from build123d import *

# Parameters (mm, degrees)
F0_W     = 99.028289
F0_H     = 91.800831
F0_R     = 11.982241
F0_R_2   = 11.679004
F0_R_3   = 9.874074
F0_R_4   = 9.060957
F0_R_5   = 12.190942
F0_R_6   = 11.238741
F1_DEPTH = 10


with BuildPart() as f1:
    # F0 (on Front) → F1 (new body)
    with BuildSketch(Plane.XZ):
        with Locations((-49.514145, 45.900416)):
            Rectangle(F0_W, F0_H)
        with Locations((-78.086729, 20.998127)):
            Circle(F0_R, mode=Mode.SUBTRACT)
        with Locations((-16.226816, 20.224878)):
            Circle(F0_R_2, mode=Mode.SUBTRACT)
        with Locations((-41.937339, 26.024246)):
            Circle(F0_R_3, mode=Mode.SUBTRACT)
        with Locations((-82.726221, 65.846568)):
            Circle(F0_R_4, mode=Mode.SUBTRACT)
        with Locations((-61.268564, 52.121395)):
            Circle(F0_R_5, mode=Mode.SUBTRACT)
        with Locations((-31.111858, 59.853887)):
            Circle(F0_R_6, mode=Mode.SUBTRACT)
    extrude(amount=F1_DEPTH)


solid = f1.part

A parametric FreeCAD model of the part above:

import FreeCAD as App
import Part
import Sketcher

V = App.Vector


def add_polygon(sketch, points):
    """Adds a closed chain of lines whose ends are joined by coincident constraints."""
    first, n = sketch.GeometryCount, len(points)
    for a, b in zip(points, points[1:] + points[:1]):
        sketch.addGeometry(Part.LineSegment(App.Vector(*a, 0), App.Vector(*b, 0)), False)
    for i in range(n):
        sketch.addConstraint(Sketcher.Constraint("Coincident", first + i, 2, first + (i + 1) % n, 1))

doc = App.newDocument("Part")
params = doc.addObject("Spreadsheet::Sheet", "Params")
for row, (alias, value) in enumerate([
    ("pad1_length", "10 mm"),
], start=1):
    params.set(f"A{row}", alias)
    params.set(f"B{row}", "=" + value)
    params.setAlias(f"B{row}", alias)

body = doc.addObject("PartDesign::Body", "Body")

# Sketch on XZ plane
sketch1 = body.newObject("Sketcher::SketchObject", "Sketch")
sketch1.AttachmentSupport = (doc.getObject("XZ_Plane"), [""])
sketch1.MapMode = "FlatFace"
add_polygon(sketch1, [(-99.028289, 91.800832), (-99.028289, 0), (0, 0), (0, 91.800832)])  # lines 0-3
sketch1.addGeometry(Part.Circle(V(-78.086729, 20.998127, 0), V(0, 0, 1), 11.982241), False)  # 4
sketch1.addGeometry(Part.Circle(V(-16.226816, 20.224878, 0), V(0, 0, 1), 11.679004), False)  # 5
sketch1.addGeometry(Part.Circle(V(-41.937339, 26.024246, 0), V(0, 0, 1), 9.874074), False)  # 6
sketch1.addGeometry(Part.Circle(V(-61.268564, 52.121395, 0), V(0, 0, 1), 12.190942), False)  # 7
sketch1.addGeometry(Part.Circle(V(-82.726221, 65.846568, 0), V(0, 0, 1), 9.060957), False)  # 8
sketch1.addGeometry(Part.Circle(V(-31.111858, 59.853887, 0), V(0, 0, 1), 11.238741), False)  # 9
sketch1.addConstraint(Sketcher.Constraint("Vertical", 0))
sketch1.addConstraint(Sketcher.Constraint("Horizontal", 1))
sketch1.addConstraint(Sketcher.Constraint("Vertical", 2))
sketch1.addConstraint(Sketcher.Constraint("Horizontal", 3))
sketch1.addConstraint(Sketcher.Constraint("Coincident", 1, 2, -1, 1))
sketch1.addConstraint(Sketcher.Constraint("Diameter", 5, 23.358008))
sketch1.addConstraint(Sketcher.Constraint("Diameter", 6, 19.748148))
sketch1.addConstraint(Sketcher.Constraint("Diameter", 9, 22.477482))
sketch1.addConstraint(Sketcher.Constraint("Diameter", 4, 23.964482))
sketch1.addConstraint(Sketcher.Constraint("Diameter", 7, 24.381884))
sketch1.addConstraint(Sketcher.Constraint("Diameter", 8, 18.121914))
sketch1.addConstraint(Sketcher.Constraint("DistanceX", 1, 1, 1, 2, 99.028289))
sketch1.addConstraint(Sketcher.Constraint("DistanceY", 0, 2, 0, 1, 91.800831))
sketch1.addConstraint(Sketcher.Constraint("DistanceX", 4, 3, -1, 1, 78.086729))
sketch1.addConstraint(Sketcher.Constraint("DistanceY", -1, 1, 5, 3, 20.224878))
sketch1.addConstraint(Sketcher.Constraint("DistanceX", 6, 3, -1, 1, 41.937339))
sketch1.addConstraint(Sketcher.Constraint("DistanceX", 8, 3, -1, 1, 82.726221))
sketch1.addConstraint(Sketcher.Constraint("DistanceY", -1, 1, 8, 3, 65.846568))
sketch1.addConstraint(Sketcher.Constraint("DistanceX", 9, 3, -1, 1, 31.111858))
sketch1.addConstraint(Sketcher.Constraint("DistanceY", 5, 3, 4, 3, 0.773249))
sketch1.addConstraint(Sketcher.Constraint("DistanceY", 5, 3, 6, 3, 5.799368))
sketch1.addConstraint(Sketcher.Constraint("DistanceY", 6, 3, 7, 3, 26.097149))
sketch1.addConstraint(Sketcher.Constraint("DistanceY", 6, 3, 9, 3, 33.829641))
sketch1.addConstraint(Sketcher.Constraint("DistanceX", 5, 3, -1, 1, 16.226816))
sketch1.addConstraint(Sketcher.Constraint("DistanceX", 7, 3, -1, 1, 61.268564))
pad1 = body.newObject("PartDesign::Pad", "Pad")
pad1.Profile = sketch1
pad1.setExpression("Length", "Params.pad1_length")

doc.recompute()
